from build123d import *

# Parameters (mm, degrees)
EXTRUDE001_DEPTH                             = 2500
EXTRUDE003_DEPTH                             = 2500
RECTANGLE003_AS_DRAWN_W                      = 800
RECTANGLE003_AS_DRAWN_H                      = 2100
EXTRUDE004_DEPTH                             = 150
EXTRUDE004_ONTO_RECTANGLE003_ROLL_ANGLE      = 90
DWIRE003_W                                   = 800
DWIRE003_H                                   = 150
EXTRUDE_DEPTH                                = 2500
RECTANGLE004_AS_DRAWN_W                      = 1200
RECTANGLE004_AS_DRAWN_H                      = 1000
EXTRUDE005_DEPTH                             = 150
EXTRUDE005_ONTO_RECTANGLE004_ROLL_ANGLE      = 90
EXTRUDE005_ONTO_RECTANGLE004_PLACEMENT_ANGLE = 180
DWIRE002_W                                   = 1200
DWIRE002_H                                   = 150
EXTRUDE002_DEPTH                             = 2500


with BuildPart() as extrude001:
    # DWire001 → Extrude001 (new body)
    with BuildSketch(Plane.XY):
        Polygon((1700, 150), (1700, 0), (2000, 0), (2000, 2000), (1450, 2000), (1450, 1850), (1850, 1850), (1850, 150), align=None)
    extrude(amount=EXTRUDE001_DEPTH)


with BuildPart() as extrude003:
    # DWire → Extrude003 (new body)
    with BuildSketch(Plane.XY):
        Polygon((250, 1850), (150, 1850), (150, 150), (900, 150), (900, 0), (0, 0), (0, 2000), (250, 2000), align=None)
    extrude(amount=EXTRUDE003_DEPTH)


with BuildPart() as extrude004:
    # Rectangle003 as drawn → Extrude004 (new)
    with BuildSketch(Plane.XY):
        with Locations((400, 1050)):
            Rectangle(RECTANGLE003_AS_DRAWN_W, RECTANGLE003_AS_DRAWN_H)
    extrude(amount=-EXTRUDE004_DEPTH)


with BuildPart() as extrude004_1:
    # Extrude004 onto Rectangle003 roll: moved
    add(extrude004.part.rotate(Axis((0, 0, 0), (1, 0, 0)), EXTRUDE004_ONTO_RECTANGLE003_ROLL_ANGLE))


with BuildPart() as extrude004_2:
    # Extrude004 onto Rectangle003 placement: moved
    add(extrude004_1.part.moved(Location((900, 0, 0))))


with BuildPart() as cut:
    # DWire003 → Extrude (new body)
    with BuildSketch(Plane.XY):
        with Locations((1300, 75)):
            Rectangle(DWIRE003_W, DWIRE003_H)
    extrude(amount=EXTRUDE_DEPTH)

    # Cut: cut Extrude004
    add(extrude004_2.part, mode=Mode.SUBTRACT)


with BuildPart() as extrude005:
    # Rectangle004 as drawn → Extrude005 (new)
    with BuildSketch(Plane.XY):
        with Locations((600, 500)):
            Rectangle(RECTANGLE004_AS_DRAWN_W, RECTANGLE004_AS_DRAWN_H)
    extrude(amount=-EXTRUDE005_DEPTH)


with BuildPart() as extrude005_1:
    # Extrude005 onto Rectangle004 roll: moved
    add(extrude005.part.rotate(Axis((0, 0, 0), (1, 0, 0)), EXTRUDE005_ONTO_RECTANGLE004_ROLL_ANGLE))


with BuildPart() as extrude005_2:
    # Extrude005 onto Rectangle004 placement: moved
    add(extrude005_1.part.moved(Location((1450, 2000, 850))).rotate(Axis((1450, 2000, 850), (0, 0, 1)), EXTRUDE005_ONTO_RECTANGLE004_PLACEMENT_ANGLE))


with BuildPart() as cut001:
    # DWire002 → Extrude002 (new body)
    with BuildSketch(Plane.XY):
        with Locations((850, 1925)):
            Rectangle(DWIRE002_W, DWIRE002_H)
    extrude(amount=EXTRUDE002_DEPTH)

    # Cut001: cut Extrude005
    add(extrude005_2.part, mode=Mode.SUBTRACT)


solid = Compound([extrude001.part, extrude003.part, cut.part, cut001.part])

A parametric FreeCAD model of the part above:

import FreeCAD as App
import Part
import Sketcher
from FreeCAD import Vector
Q = App.Units.Quantity

doc = App.newDocument("Part")
body = doc.addObject("PartDesign::Body", "Body")

sketch1 = body.newObject("Sketcher::SketchObject", "Sketch")
sketch1.AttachmentSupport = (doc.getObject("XY_Plane"), [""])
sketch1.MapMode = "FlatFace"
sketch1.addGeometry(Part.LineSegment(Vector(1700, 150, 0), Vector(1700, 0, 0)), False)
sketch1.addGeometry(Part.LineSegment(Vector(1700, 0, 0), Vector(2000, 0, 0)), False)
sketch1.addGeometry(Part.LineSegment(Vector(2000, 0, 0), Vector(2000, 2000, 0)), False)
sketch1.addGeometry(Part.LineSegment(Vector(2000, 2000, 0), Vector(1450, 2000, 0)), False)
sketch1.addGeometry(Part.LineSegment(Vector(1450, 2000, 0), Vector(1450, 1850, 0)), False)
sketch1.addGeometry(Part.LineSegment(Vector(1450, 1850, 0), Vector(1850, 1850, 0)), False)
sketch1.addGeometry(Part.LineSegment(Vector(1850, 1850, 0), Vector(1850, 150, 0)), False)
sketch1.addGeometry(Part.LineSegment(Vector(1850, 150, 0), Vector(1700, 150, 0)), False)
sketch1.addConstraint(Sketcher.Constraint("Coincident", 0, 2, 1, 1))
sketch1.addConstraint(Sketcher.Constraint("Coincident", 1, 2, 2, 1))
sketch1.addConstraint(Sketcher.Constraint("Coincident", 2, 2, 3, 1))
sketch1.addConstraint(Sketcher.Constraint("Coincident", 3, 2, 4, 1))
sketch1.addConstraint(Sketcher.Constraint("Coincident", 4, 2, 5, 1))
sketch1.addConstraint(Sketcher.Constraint("Coincident", 5, 2, 6, 1))
sketch1.addConstraint(Sketcher.Constraint("Coincident", 6, 2, 7, 1))
sketch1.addConstraint(Sketcher.Constraint("Coincident", 7, 2, 0, 1))
sketch1.addConstraint(Sketcher.Constraint("Vertical", 0))
sketch1.addConstraint(Sketcher.Constraint("Horizontal", 1))
sketch1.addConstraint(Sketcher.Constraint("Vertical", 2))
sketch1.addConstraint(Sketcher.Constraint("Horizontal", 3))
sketch1.addConstraint(Sketcher.Constraint("Vertical", 4))
sketch1.addConstraint(Sketcher.Constraint("Horizontal", 5))
sketch1.addConstraint(Sketcher.Constraint("Vertical", 6))
sketch1.addConstraint(Sketcher.Constraint("Horizontal", 7))
sketch1.addConstraint(Sketcher.Constraint("PointOnObject", 0, 2, -1))
sketch1.addConstraint(Sketcher.Constraint("Equal", 7, 0))
sketch1.addConstraint(Sketcher.Constraint("Equal", 0, 4))
sketch1.addConstraint(Sketcher.Constraint("DistanceX", 1, 1, 1, 2, Q("300 mm")))
sketch1.addConstraint(Sketcher.Constraint("DistanceX", 3, 2, 3, 1, Q("550 mm")))
sketch1.addConstraint(Sketcher.Constraint("DistanceX", 5, 1, 5, 2, Q("400 mm")))
sketch1.addConstraint(Sketcher.Constraint("DistanceY", 2, 1, 2, 2, Q("2000 mm")))
sketch1.addConstraint(Sketcher.Constraint("DistanceX", -1, 1, 0, 2, Q("1700 mm")))
pad1 = body.newObject("PartDesign::Pad", "Pad")
pad1.Profile = sketch1
pad1.Length = 2500
body2 = doc.addObject("PartDesign::Body", "Body001")

sketch2 = body2.newObject("Sketcher::SketchObject", "Sketch001")
sketch2.AttachmentSupport = (doc.getObject("XY_Plane001"), [""])
sketch2.MapMode = "FlatFace"
sketch2.addGeometry(Part.LineSegment(Vector(150, 1850, 0), Vector(250, 1850, 0)), False)
sketch2.addGeometry(Part.LineSegment(Vector(250, 1850, 0), Vector(250, 2000, 0)), False)
sketch2.addGeometry(Part.LineSegment(Vector(250, 2000, 0), Vector(0, 2000, 0)), False)
sketch2.addGeometry(Part.LineSegment(Vector(0, 2000, 0), Vector(0, 0, 0)), False)
sketch2.addGeometry(Part.LineSegment(Vector(0, 0, 0), Vector(900, 0, 0)), False)
sketch2.addGeometry(Part.LineSegment(Vector(900, 0, 0), Vector(900, 150, 0)), False)
sketch2.addGeometry(Part.LineSegment(Vector(900, 150, 0), Vector(150, 150, 0)), False)
sketch2.addGeometry(Part.LineSegment(Vector(150, 150, 0), Vector(150, 1850, 0)), False)
sketch2.addConstraint(Sketcher.Constraint("Coincident", 0, 2, 1, 1))
sketch2.addConstraint(Sketcher.Constraint("Coincident", 1, 2, 2, 1))
sketch2.addConstraint(Sketcher.Constraint("Coincident", 2, 2, 3, 1))
sketch2.addConstraint(Sketcher.Constraint("Coincident", 3, 2, 4, 1))
sketch2.addConstraint(Sketcher.Constraint("Coincident", 4, 2, 5, 1))
sketch2.addConstraint(Sketcher.Constraint("Coincident", 5, 2, 6, 1))
sketch2.addConstraint(Sketcher.Constraint("Coincident", 6, 2, 7, 1))
sketch2.addConstraint(Sketcher.Constraint("Coincident", 7, 2, 0, 1))
sketch2.addConstraint(Sketcher.Constraint("Horizontal", 0))
sketch2.addConstraint(Sketcher.Constraint("Vertical", 1))
sketch2.addConstraint(Sketcher.Constraint("Horizontal", 2))
sketch2.addConstraint(Sketcher.Constraint("Vertical", 3))
sketch2.addConstraint(Sketcher.Constraint("Horizontal", 4))
sketch2.addConstraint(Sketcher.Constraint("Vertical", 5))
sketch2.addConstraint(Sketcher.Constraint("Horizontal", 6))
sketch2.addConstraint(Sketcher.Constraint("Vertical", 7))
sketch2.addConstraint(Sketcher.Constraint("Coincident", 3, 2, -1, 1))
sketch2.addConstraint(Sketcher.Constraint("Equal", 1, 5))
sketch2.addConstraint(Sketcher.Constraint("DistanceX", 0, 1, 0, 2, Q("100 mm")))
sketch2.addConstraint(Sketcher.Constraint("DistanceX", 2, 2, 2, 1, Q("250 mm")))
sketch2.addConstraint(Sketcher.Constraint("DistanceX", 4, 1, 4, 2, Q("900 mm")))
sketch2.addConstraint(Sketcher.Constraint("DistanceY", 1, 1, 1, 2, Q("150 mm")))
sketch2.addConstraint(Sketcher.Constraint("DistanceY", 3, 2, 3, 1, Q("2000 mm")))
pad2 = body2.newObject("PartDesign::Pad", "Pad001")
pad2.Profile = sketch2
pad2.Length = 2500
body3 = doc.addObject("PartDesign::Body", "Body002")

sketch3 = body3.newObject("Sketcher::SketchObject", "Sketch002")
sketch3.AttachmentSupport = (doc.getObject("XY_Plane002"), [""])
sketch3.MapMode = "FlatFace"
sketch3.addGeometry(Part.LineSegment(Vector(0, 2100, 0), Vector(0, 0, 0)), False)
sketch3.addGeometry(Part.LineSegment(Vector(0, 0, 0), Vector(800, 0, 0)), False)
sketch3.addGeometry(Part.LineSegment(Vector(800, 0, 0), Vector(800, 2100, 0)), False)
sketch3.addGeometry(Part.LineSegment(Vector(800, 2100, 0), Vector(0, 2100, 0)), False)
sketch3.addConstraint(Sketcher.Constraint("Coincident", 0, 2, 1, 1))
sketch3.addConstraint(Sketcher.Constraint("Coincident", 1, 2, 2, 1))
sketch3.addConstraint(Sketcher.Constraint("Coincident", 2, 2, 3, 1))
sketch3.addConstraint(Sketcher.Constraint("Coincident", 3, 2, 0, 1))
sketch3.addConstraint(Sketcher.Constraint("Vertical", 0))
sketch3.addConstraint(Sketcher.Constraint("Horizontal", 1))
sketch3.addConstraint(Sketcher.Constraint("Vertical", 2))
sketch3.addConstraint(Sketcher.Constraint("Horizontal", 3))
sketch3.addConstraint(Sketcher.Constraint("Coincident", 0, 2, -1, 1))
sketch3.addConstraint(Sketcher.Constraint("DistanceX", 1, 1, 1, 2, Q("800 mm")))
sketch3.addConstraint(Sketcher.Constraint("DistanceY", 0, 2, 0, 1, Q("2100 mm")))
pad3 = body3.newObject("PartDesign::Pad", "Pad002")
pad3.Profile = sketch3
pad3.Length = 150
pad3.Reversed = True
body4 = doc.addObject("PartDesign::Body", "Body003")
doc.recompute()

body3.Placement = App.Placement(Vector(0, 0, 0), App.Rotation(Vector(1, 0, 0), 90))
boolean = body4.newObject("PartDesign::Boolean", "Boolean")
boolean.Type = "Fuse"
boolean.addObjects([body3])
body5 = doc.addObject("PartDesign::Body", "Body004")
doc.recompute()

body4.Placement = App.Placement(Vector(900, 0, 0), App.Rotation(Vector(0, 0, 1), 0))
boolean2 = body5.newObject("PartDesign::Boolean", "Boolean001")
boolean2.Type = "Fuse"
boolean2.addObjects([body4])
body6 = doc.addObject("PartDesign::Body", "Body005")

sketch4 = body6.newObject("Sketcher::SketchObject", "Sketch003")
sketch4.AttachmentSupport = (doc.getObject("XY_Plane005"), [""])
sketch4.MapMode = "FlatFace"
sketch4.addGeometry(Part.LineSegment(Vector(900, 150, 0), Vector(900, 0, 0)), False)
sketch4.addGeometry(Part.LineSegment(Vector(900, 0, 0), Vector(1700, 0, 0)), False)
sketch4.addGeometry(Part.LineSegment(Vector(1700, 0, 0), Vector(1700, 150, 0)), False)
sketch4.addGeometry(Part.LineSegment(Vector(1700, 150, 0), Vector(900, 150, 0)), False)
sketch4.addConstraint(Sketcher.Constraint("Coincident", 0, 2, 1, 1))
sketch4.addConstraint(Sketcher.Constraint("Coincident", 1, 2, 2, 1))
sketch4.addConstraint(Sketcher.Constraint("Coincident", 2, 2, 3, 1))
sketch4.addConstraint(Sketcher.Constraint("Coincident", 3, 2, 0, 1))
sketch4.addConstraint(Sketcher.Constraint("Vertical", 0))
sketch4.addConstraint(Sketcher.Constraint("Horizontal", 1))
sketch4.addConstraint(Sketcher.Constraint("Vertical", 2))
sketch4.addConstraint(Sketcher.Constraint("Horizontal", 3))
sketch4.addConstraint(Sketcher.Constraint("PointOnObject", 0, 2, -1))
sketch4.addConstraint(Sketcher.Constraint("DistanceX", 1, 1, 1, 2, Q("800 mm")))
sketch4.addConstraint(Sketcher.Constraint("DistanceY", 0, 2, 0, 1, Q("150 mm")))
sketch4.addConstraint(Sketcher.Constraint("DistanceX", -1, 1, 0, 2, Q("900 mm")))
pad4 = body6.newObject("PartDesign::Pad", "Pad003")
pad4.Profile = sketch4
pad4.Length = 2500
doc.recompute()

boolean3 = body6.newObject("PartDesign::Boolean", "Boolean002")
boolean3.Type = "Cut"
boolean3.addObjects([body5])
body7 = doc.addObject("PartDesign::Body", "Body006")

sketch5 = body7.newObject("Sketcher::SketchObject", "Sketch004")
sketch5.AttachmentSupport = (doc.getObject("XY_Plane006"), [""])
sketch5.MapMode = "FlatFace"
sketch5.addGeometry(Part.LineSegment(Vector(0, 1000, 0), Vector(0, 0, 0)), False)
sketch5.addGeometry(Part.LineSegment(Vector(0, 0, 0), Vector(1200, 0, 0)), False)
sketch5.addGeometry(Part.LineSegment(Vector(1200, 0, 0), Vector(1200, 1000, 0)), False)
sketch5.addGeometry(Part.LineSegment(Vector(1200, 1000, 0), Vector(0, 1000, 0)), False)
sketch5.addConstraint(Sketcher.Constraint("Coincident", 0, 2, 1, 1))
sketch5.addConstraint(Sketcher.Constraint("Coincident", 1, 2, 2, 1))
sketch5.addConstraint(Sketcher.Constraint("Coincident", 2, 2, 3, 1))
sketch5.addConstraint(Sketcher.Constraint("Coincident", 3, 2, 0, 1))
sketch5.addConstraint(Sketcher.Constraint("Vertical", 0))
sketch5.addConstraint(Sketcher.Constraint("Horizontal", 1))
sketch5.addConstraint(Sketcher.Constraint("Vertical", 2))
sketch5.addConstraint(Sketcher.Constraint("Horizontal", 3))
sketch5.addConstraint(Sketcher.Constraint("Coincident", 0, 2, -1, 1))
sketch5.addConstraint(Sketcher.Constraint("DistanceX", 1, 1, 1, 2, Q("1200 mm")))
sketch5.addConstraint(Sketcher.Constraint("DistanceY", 0, 2, 0, 1, Q("1000 mm")))
pad5 = body7.newObject("PartDesign::Pad", "Pad004")
pad5.Profile = sketch5
pad5.Length = 150
pad5.Reversed = True
body8 = doc.addObject("PartDesign::Body", "Body007")
doc.recompute()

body7.Placement = App.Placement(Vector(0, 0, 0), App.Rotation(Vector(1, 0, 0), 90))
boolean4 = body8.newObject("PartDesign::Boolean", "Boolean003")
boolean4.Type = "Fuse"
boolean4.addObjects([body7])
body9 = doc.addObject("PartDesign::Body", "Body008")
doc.recompute()

body8.Placement = App.Placement(Vector(1450, 2000, 850), App.Rotation(Vector(0, 0, 1), 180))
boolean5 = body9.newObject("PartDesign::Boolean", "Boolean004")
boolean5.Type = "Fuse"
boolean5.addObjects([body8])
body10 = doc.addObject("PartDesign::Body", "Body009")
body10.AllowCompound = True

sketch6 = body10.newObject("Sketcher::SketchObject", "Sketch005")
sketch6.AttachmentSupport = (doc.getObject("XY_Plane009"), [""])
sketch6.MapMode = "FlatFace"
sketch6.addGeometry(Part.LineSegment(Vector(250, 2000, 0), Vector(250, 1850, 0)), False)
sketch6.addGeometry(Part.LineSegment(Vector(250, 1850, 0), Vector(1450, 1850, 0)), False)
sketch6.addGeometry(Part.LineSegment(Vector(1450, 1850, 0), Vector(1450, 2000, 0)), False)
sketch6.addGeometry(Part.LineSegment(Vector(1450, 2000, 0), Vector(250, 2000, 0)), False)
sketch6.addConstraint(Sketcher.Constraint("Coincident", 0, 2, 1, 1))
sketch6.addConstraint(Sketcher.Constraint("Coincident", 1, 2, 2, 1))
sketch6.addConstraint(Sketcher.Constraint("Coincident", 2, 2, 3, 1))
sketch6.addConstraint(Sketcher.Constraint("Coincident", 3, 2, 0, 1))
sketch6.addConstraint(Sketcher.Constraint("Vertical", 0))
sketch6.addConstraint(Sketcher.Constraint("Horizontal", 1))
sketch6.addConstraint(Sketcher.Constraint("Vertical", 2))
sketch6.addConstraint(Sketcher.Constraint("Horizontal", 3))
sketch6.addConstraint(Sketcher.Constraint("DistanceX", 1, 1, 1, 2, Q("1200 mm")))
sketch6.addConstraint(Sketcher.Constraint("DistanceY", 0, 2, 0, 1, Q("150 mm")))
sketch6.addConstraint(Sketcher.Constraint("DistanceX", -1, 1, 0, 2, Q("250 mm")))
sketch6.addConstraint(Sketcher.Constraint("DistanceY", -1, 1, 0, 2, Q("1850 mm")))
pad6 = body10.newObject("PartDesign::Pad", "Pad005")
pad6.Profile = sketch6
pad6.Length = 2500
doc.recompute()

boolean6 = body10.newObject("PartDesign::Boolean", "Boolean005")
boolean6.Type = "Cut"
boolean6.addObjects([body9])

doc.recompute()
